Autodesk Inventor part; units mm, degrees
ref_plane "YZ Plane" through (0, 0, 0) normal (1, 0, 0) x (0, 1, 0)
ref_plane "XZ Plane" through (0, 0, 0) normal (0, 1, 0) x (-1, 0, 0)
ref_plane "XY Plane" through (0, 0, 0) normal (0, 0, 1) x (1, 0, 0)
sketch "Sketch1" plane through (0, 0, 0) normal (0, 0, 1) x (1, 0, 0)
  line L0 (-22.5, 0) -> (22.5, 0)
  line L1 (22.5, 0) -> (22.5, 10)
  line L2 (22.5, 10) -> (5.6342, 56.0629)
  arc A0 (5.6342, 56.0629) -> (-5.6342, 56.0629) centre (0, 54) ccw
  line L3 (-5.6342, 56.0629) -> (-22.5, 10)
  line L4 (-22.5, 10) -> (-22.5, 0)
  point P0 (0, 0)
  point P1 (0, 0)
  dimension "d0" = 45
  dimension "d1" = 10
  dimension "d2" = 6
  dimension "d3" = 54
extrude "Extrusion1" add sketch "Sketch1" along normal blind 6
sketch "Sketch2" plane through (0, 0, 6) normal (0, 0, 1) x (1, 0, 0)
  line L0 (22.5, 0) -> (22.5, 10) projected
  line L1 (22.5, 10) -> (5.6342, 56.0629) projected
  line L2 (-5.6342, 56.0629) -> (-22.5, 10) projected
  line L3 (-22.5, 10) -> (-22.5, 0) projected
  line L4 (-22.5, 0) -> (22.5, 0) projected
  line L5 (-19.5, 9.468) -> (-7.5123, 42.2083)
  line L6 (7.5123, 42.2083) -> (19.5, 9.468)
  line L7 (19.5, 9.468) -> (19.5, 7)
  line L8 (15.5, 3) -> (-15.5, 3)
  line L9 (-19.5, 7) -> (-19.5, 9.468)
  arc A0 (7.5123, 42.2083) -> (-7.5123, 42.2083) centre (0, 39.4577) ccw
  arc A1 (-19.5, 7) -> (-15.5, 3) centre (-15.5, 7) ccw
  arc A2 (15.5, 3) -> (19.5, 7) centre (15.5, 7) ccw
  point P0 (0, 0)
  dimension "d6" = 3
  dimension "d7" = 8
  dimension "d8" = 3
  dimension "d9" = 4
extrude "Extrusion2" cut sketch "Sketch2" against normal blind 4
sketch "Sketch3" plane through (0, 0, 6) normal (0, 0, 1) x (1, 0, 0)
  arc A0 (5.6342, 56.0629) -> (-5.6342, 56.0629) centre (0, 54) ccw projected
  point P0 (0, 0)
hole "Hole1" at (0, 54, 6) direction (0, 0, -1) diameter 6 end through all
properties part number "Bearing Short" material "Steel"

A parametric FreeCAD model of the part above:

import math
import FreeCAD as App
import Part
import Sketcher
Q = App.Units.Quantity

doc = App.newDocument("Part")
body = doc.addObject("PartDesign::Body", "Body")

sketch1 = body.newObject("Sketcher::SketchObject", "Sketch")
sketch1.AttachmentSupport = (doc.getObject("XY_Plane"), [""])
sketch1.MapMode = "FlatFace"
sketch1.addGeometry(Part.LineSegment(App.Vector(-22, 10, 0), App.Vector(-22, 0, 0)), False)
sketch1.addGeometry(Part.LineSegment(App.Vector(-22, 0, 0), App.Vector(22, 0, 0)), False)
sketch1.addGeometry(Part.LineSegment(App.Vector(22, 0, 0), App.Vector(22, 10, 0)), False)
sketch1.addGeometry(Part.LineSegment(App.Vector(22, 10, 0), App.Vector(6, 56, 0)), False)
sketch1.addGeometry(Part.ArcOfCircle(Part.Circle(App.Vector(0, 54, 0), App.Vector(0, 0, 1), 6), math.radians(20), math.radians(160)), False)
sketch1.addGeometry(Part.LineSegment(App.Vector(-6, 56, 0), App.Vector(-22, 10, 0)), False)
sketch1.addConstraint(Sketcher.Constraint("Coincident", 0, 2, 1, 1))
sketch1.addConstraint(Sketcher.Constraint("Coincident", 1, 2, 2, 1))
sketch1.addConstraint(Sketcher.Constraint("Coincident", 2, 2, 3, 1))
sketch1.addConstraint(Sketcher.Constraint("Tangent", 3, 2, 4, 1))
sketch1.addConstraint(Sketcher.Constraint("Tangent", 4, 2, 5, 1))
sketch1.addConstraint(Sketcher.Constraint("Coincident", 5, 2, 0, 1))
sketch1.addConstraint(Sketcher.Constraint("Vertical", 0))
sketch1.addConstraint(Sketcher.Constraint("Horizontal", 1))
sketch1.addConstraint(Sketcher.Constraint("Vertical", 2))
sketch1.addConstraint(Sketcher.Constraint("Symmetric", 0, 2, 1, 2, -1, 1))
sketch1.addConstraint(Sketcher.Constraint("Symmetric", 3, 2, 4, 2, -2))
sketch1.addConstraint(Sketcher.Constraint("Radius", 4, 6.0))
sketch1.addConstraint(Sketcher.Constraint("DistanceX", 1, 1, 1, 2, 45.0))
sketch1.addConstraint(Sketcher.Constraint("DistanceY", 0, 2, 0, 1, 10.0))
sketch1.addConstraint(Sketcher.Constraint("DistanceY", -1, 1, 4, 3, 54.0))
pad1 = body.newObject("PartDesign::Pad", "Pad")
pad1.Profile = sketch1
pad1.Length = 6

sketch2 = body.newObject("Sketcher::SketchObject", "Sketch001")
sketch2.AttachmentSupport = (doc.getObject("XY_Plane"), [""])
sketch2.MapMode = "FlatFace"
sketch2.AttachmentOffset = App.Placement(App.Vector(0, 0, 6), App.Rotation())
sketch2.addGeometry(Part.LineSegment(App.Vector(-7.5, 42.2, 0), App.Vector(-19.5, 9.5, 0)), False)
sketch2.addGeometry(Part.LineSegment(App.Vector(-19.5, 9.5, 0), App.Vector(-19.5, 7, 0)), False)
sketch2.addGeometry(Part.ArcOfCircle(Part.Circle(App.Vector(-15.5, 7, 0), App.Vector(0, 0, 1), 4), math.radians(180), math.radians(270)), False)
sketch2.addGeometry(Part.LineSegment(App.Vector(-15.5, 3, 0), App.Vector(15.5, 3, 0)), False)
sketch2.addGeometry(Part.ArcOfCircle(Part.Circle(App.Vector(15.5, 7, 0), App.Vector(0, 0, 1), 4), math.radians(-90), math.radians(0)), False)
sketch2.addGeometry(Part.LineSegment(App.Vector(19.5, 7, 0), App.Vector(19.5, 9.5, 0)), False)
sketch2.addGeometry(Part.LineSegment(App.Vector(19.5, 9.5, 0), App.Vector(7.5, 42.2, 0)), False)
sketch2.addGeometry(Part.ArcOfCircle(Part.Circle(App.Vector(0, 39.5, 0), App.Vector(0, 0, 1), 8), math.radians(20), math.radians(160)), False)
sketch2.addConstraint(Sketcher.Constraint("Coincident", 0, 2, 1, 1))
sketch2.addConstraint(Sketcher.Constraint("Tangent", 1, 2, 2, 1))
sketch2.addConstraint(Sketcher.Constraint("Tangent", 2, 2, 3, 1))
sketch2.addConstraint(Sketcher.Constraint("Tangent", 3, 2, 4, 1))
sketch2.addConstraint(Sketcher.Constraint("Tangent", 4, 2, 5, 1))
sketch2.addConstraint(Sketcher.Constraint("Coincident", 5, 2, 6, 1))
sketch2.addConstraint(Sketcher.Constraint("Tangent", 6, 2, 7, 1))
sketch2.addConstraint(Sketcher.Constraint("Tangent", 7, 2, 0, 1))
sketch2.addConstraint(Sketcher.Constraint("Vertical", 1))
sketch2.addConstraint(Sketcher.Constraint("Horizontal", 3))
sketch2.addConstraint(Sketcher.Constraint("Vertical", 5))
sketch2.addConstraint(Sketcher.Constraint("Equal", 2, 4))
sketch2.addConstraint(Sketcher.Constraint("Symmetric", 0, 2, 5, 2, -2))
sketch2.addConstraint(Sketcher.Constraint("PointOnObject", 7, 3, -2))
sketch2.addConstraint(Sketcher.Constraint("Radius", 2, 4.0))
sketch2.addConstraint(Sketcher.Constraint("Radius", 7, 8.0))
sketch2.addConstraint(Sketcher.Constraint("DistanceY", -1, 1, 2, 2, 3.0))
sketch2.addConstraint(Sketcher.Constraint("DistanceX", 3, 1, 3, 2, 31.0))
sketch2.addConstraint(Sketcher.Constraint("Angle", 0, Q("-110.11 deg")))
sketch2.addConstraint(Sketcher.Constraint("DistanceY", 1, 2, 1, 1, 2.468))
pocket1 = body.newObject("PartDesign::Pocket", "Pocket")
pocket1.Profile = sketch2
pocket1.Length = 4

sketch3 = body.newObject("Sketcher::SketchObject", "Sketch002")
sketch3.AttachmentSupport = (doc.getObject("XY_Plane"), [""])
sketch3.MapMode = "FlatFace"
sketch3.AttachmentOffset = App.Placement(App.Vector(0, 0, 6), App.Rotation())
sketch3.addGeometry(Part.Circle(App.Vector(0, 54, 0), App.Vector(0, 0, 1), 3), False)
sketch3.addConstraint(Sketcher.Constraint("PointOnObject", 0, 3, -2))
sketch3.addConstraint(Sketcher.Constraint("Diameter", 0, 6.0))
sketch3.addConstraint(Sketcher.Constraint("DistanceY", -1, 1, 0, 3, 54.0))
doc.recompute()
hole = body.newObject("PartDesign::Hole", "Hole")
hole.Profile = sketch3
hole.ThreadType = "None"
hole.Diameter = 6
hole.DepthType = "ThroughAll"

doc.recompute()
